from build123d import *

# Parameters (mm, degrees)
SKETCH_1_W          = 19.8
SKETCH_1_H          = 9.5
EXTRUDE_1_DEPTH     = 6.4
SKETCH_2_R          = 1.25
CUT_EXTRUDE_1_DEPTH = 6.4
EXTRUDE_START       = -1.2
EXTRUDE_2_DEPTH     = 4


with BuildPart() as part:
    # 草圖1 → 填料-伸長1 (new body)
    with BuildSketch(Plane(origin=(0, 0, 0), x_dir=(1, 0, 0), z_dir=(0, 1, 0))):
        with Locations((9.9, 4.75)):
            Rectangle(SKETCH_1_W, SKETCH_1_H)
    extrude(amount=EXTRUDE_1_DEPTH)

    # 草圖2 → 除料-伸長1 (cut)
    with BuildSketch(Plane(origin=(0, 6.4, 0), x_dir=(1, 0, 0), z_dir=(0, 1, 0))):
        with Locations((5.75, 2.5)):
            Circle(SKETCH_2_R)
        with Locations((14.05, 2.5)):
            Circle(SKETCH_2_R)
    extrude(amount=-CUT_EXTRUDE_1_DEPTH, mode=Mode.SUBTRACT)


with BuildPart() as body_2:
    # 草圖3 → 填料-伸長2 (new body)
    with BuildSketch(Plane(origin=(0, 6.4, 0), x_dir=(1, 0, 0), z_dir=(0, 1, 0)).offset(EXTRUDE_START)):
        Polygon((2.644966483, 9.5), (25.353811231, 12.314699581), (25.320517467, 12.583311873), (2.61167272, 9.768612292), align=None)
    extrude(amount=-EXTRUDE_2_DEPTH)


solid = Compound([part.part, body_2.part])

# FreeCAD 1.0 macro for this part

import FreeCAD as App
import Part
import Sketcher

doc = App.newDocument("Part")
params = doc.addObject("Spreadsheet::Sheet", "Params")
for row, (alias, value) in enumerate([
    ("sketch1_width", "19.8 mm"),
    ("sketch1_height", "9.5 mm"),
    ("pad1_length", "6.4 mm"),
    ("sketch2_diameter", "2.5 mm"),
    ("pocket1_length", "6.4 mm"),
    ("pad2_length", "4 mm"),
], start=1):
    params.set(f"A{row}", alias)
    params.set(f"B{row}", "=" + value)
    params.setAlias(f"B{row}", alias)

body = doc.addObject("PartDesign::Body", "Body")

sketch1 = body.newObject("Sketcher::SketchObject", "Sketch")
sketch1.AttachmentSupport = (doc.getObject("XZ_Plane"), [""])
sketch1.MapMode = "FlatFace"
sketch1.addGeometry(Part.LineSegment(App.Vector(0, -9.5, 0), App.Vector(0, 0, 0)), False)
sketch1.addGeometry(Part.LineSegment(App.Vector(0, 0, 0), App.Vector(19.8, 0, 0)), False)
sketch1.addGeometry(Part.LineSegment(App.Vector(19.8, 0, 0), App.Vector(19.8, -9.5, 0)), False)
sketch1.addGeometry(Part.LineSegment(App.Vector(19.8, -9.5, 0), App.Vector(0, -9.5, 0)), False)
sketch1.addConstraint(Sketcher.Constraint("Coincident", 0, 2, 1, 1))
sketch1.addConstraint(Sketcher.Constraint("Coincident", 1, 2, 2, 1))
sketch1.addConstraint(Sketcher.Constraint("Coincident", 2, 2, 3, 1))
sketch1.addConstraint(Sketcher.Constraint("Coincident", 3, 2, 0, 1))
sketch1.addConstraint(Sketcher.Constraint("Vertical", 0))
sketch1.addConstraint(Sketcher.Constraint("Horizontal", 1))
sketch1.addConstraint(Sketcher.Constraint("Vertical", 2))
sketch1.addConstraint(Sketcher.Constraint("Horizontal", 3))
sketch1.addConstraint(Sketcher.Constraint("Coincident", 0, 2, -1, 1))
sketch1.addConstraint(Sketcher.Constraint("DistanceX", 1, 1, 1, 2, 19.8))
sketch1.addConstraint(Sketcher.Constraint("DistanceY", 0, 1, 0, 2, 9.5))
sketch1.setExpression("Constraints[9]", "Params.sketch1_width")
sketch1.setExpression("Constraints[10]", "Params.sketch1_height")
pad1 = body.newObject("PartDesign::Pad", "Pad")
pad1.Profile = sketch1
pad1.setExpression("Length", "Params.pad1_length")
pad1.Reversed = True

sketch2 = body.newObject("Sketcher::SketchObject", "Sketch001")
sketch2.AttachmentSupport = (doc.getObject("XZ_Plane"), [""])
sketch2.MapMode = "FlatFace"
sketch2.AttachmentOffset = App.Placement(App.Vector(0, 0, -6.4), App.Rotation())
sketch2.addGeometry(Part.Circle(App.Vector(5.75, -2.5, 0), App.Vector(0, 0, 1), 1.25), False)
sketch2.addGeometry(Part.Circle(App.Vector(14.05, -2.5, 0), App.Vector(0, 0, 1), 1.25), False)
sketch2.addConstraint(Sketcher.Constraint("Equal", 0, 1))
sketch2.addConstraint(Sketcher.Constraint("Horizontal", 0, 3, 1, 3))
sketch2.addConstraint(Sketcher.Constraint("Diameter", 0, 2.5))
sketch2.addConstraint(Sketcher.Constraint("DistanceY", 0, 3, -1, 1, 2.5))
sketch2.addConstraint(Sketcher.Constraint("DistanceX", 0, 3, 1, 3, 8.3))
sketch2.addConstraint(Sketcher.Constraint("DistanceX", -1, 1, 0, 3, 5.75))
sketch2.setExpression("Constraints[2]", "Params.sketch2_diameter")
pocket1 = body.newObject("PartDesign::Pocket", "Pocket")
pocket1.Profile = sketch2
pocket1.setExpression("Length", "Params.pocket1_length")
pocket1.Reversed = True
body2 = doc.addObject("PartDesign::Body", "Body001")

sketch3 = body2.newObject("Sketcher::SketchObject", "Sketch002")
sketch3.AttachmentSupport = (doc.getObject("XZ_Plane001"), [""])
sketch3.MapMode = "FlatFace"
sketch3.AttachmentOffset = App.Placement(App.Vector(0, 0, -5.2), App.Rotation())
sketch3.addGeometry(Part.LineSegment(App.Vector(2.644966, -9.5, 0), App.Vector(25.353811, -12.3147, 0)), False)
sketch3.addGeometry(Part.LineSegment(App.Vector(25.353811, -12.3147, 0), App.Vector(25.320517, -12.583312, 0)), False)
sketch3.addGeometry(Part.LineSegment(App.Vector(25.320517, -12.583312, 0), App.Vector(2.611673, -9.768612, 0)), False)
sketch3.addGeometry(Part.LineSegment(App.Vector(2.611673, -9.768612, 0), App.Vector(2.644966, -9.5, 0)), False)
sketch3.addConstraint(Sketcher.Constraint("Coincident", 0, 2, 1, 1))
sketch3.addConstraint(Sketcher.Constraint("Coincident", 1, 2, 2, 1))
sketch3.addConstraint(Sketcher.Constraint("Coincident", 2, 2, 3, 1))
sketch3.addConstraint(Sketcher.Constraint("Coincident", 3, 2, 0, 1))
sketch3.addConstraint(Sketcher.Constraint("Perpendicular", 0, 1))
sketch3.addConstraint(Sketcher.Constraint("Perpendicular", 1, 2))
sketch3.addConstraint(Sketcher.Constraint("Perpendicular", 2, 3))
sketch3.addConstraint(Sketcher.Constraint("DistanceY", 3, 2, -1, 1, 9.5))
sketch3.addConstraint(Sketcher.Constraint("DistanceY", 0, 2, -1, 1, 12.3147))
sketch3.addConstraint(Sketcher.Constraint("DistanceX", -1, 1, 0, 2, 25.353811))
sketch3.addConstraint(Sketcher.Constraint("DistanceY", 1, 2, -1, 1, 12.583312))
sketch3.addConstraint(Sketcher.Constraint("DistanceX", 2, 2, 0, 2, 22.742139))
pad2 = body2.newObject("PartDesign::Pad", "Pad001")
pad2.Profile = sketch3
pad2.setExpression("Length", "Params.pad2_length")

doc.recompute()
